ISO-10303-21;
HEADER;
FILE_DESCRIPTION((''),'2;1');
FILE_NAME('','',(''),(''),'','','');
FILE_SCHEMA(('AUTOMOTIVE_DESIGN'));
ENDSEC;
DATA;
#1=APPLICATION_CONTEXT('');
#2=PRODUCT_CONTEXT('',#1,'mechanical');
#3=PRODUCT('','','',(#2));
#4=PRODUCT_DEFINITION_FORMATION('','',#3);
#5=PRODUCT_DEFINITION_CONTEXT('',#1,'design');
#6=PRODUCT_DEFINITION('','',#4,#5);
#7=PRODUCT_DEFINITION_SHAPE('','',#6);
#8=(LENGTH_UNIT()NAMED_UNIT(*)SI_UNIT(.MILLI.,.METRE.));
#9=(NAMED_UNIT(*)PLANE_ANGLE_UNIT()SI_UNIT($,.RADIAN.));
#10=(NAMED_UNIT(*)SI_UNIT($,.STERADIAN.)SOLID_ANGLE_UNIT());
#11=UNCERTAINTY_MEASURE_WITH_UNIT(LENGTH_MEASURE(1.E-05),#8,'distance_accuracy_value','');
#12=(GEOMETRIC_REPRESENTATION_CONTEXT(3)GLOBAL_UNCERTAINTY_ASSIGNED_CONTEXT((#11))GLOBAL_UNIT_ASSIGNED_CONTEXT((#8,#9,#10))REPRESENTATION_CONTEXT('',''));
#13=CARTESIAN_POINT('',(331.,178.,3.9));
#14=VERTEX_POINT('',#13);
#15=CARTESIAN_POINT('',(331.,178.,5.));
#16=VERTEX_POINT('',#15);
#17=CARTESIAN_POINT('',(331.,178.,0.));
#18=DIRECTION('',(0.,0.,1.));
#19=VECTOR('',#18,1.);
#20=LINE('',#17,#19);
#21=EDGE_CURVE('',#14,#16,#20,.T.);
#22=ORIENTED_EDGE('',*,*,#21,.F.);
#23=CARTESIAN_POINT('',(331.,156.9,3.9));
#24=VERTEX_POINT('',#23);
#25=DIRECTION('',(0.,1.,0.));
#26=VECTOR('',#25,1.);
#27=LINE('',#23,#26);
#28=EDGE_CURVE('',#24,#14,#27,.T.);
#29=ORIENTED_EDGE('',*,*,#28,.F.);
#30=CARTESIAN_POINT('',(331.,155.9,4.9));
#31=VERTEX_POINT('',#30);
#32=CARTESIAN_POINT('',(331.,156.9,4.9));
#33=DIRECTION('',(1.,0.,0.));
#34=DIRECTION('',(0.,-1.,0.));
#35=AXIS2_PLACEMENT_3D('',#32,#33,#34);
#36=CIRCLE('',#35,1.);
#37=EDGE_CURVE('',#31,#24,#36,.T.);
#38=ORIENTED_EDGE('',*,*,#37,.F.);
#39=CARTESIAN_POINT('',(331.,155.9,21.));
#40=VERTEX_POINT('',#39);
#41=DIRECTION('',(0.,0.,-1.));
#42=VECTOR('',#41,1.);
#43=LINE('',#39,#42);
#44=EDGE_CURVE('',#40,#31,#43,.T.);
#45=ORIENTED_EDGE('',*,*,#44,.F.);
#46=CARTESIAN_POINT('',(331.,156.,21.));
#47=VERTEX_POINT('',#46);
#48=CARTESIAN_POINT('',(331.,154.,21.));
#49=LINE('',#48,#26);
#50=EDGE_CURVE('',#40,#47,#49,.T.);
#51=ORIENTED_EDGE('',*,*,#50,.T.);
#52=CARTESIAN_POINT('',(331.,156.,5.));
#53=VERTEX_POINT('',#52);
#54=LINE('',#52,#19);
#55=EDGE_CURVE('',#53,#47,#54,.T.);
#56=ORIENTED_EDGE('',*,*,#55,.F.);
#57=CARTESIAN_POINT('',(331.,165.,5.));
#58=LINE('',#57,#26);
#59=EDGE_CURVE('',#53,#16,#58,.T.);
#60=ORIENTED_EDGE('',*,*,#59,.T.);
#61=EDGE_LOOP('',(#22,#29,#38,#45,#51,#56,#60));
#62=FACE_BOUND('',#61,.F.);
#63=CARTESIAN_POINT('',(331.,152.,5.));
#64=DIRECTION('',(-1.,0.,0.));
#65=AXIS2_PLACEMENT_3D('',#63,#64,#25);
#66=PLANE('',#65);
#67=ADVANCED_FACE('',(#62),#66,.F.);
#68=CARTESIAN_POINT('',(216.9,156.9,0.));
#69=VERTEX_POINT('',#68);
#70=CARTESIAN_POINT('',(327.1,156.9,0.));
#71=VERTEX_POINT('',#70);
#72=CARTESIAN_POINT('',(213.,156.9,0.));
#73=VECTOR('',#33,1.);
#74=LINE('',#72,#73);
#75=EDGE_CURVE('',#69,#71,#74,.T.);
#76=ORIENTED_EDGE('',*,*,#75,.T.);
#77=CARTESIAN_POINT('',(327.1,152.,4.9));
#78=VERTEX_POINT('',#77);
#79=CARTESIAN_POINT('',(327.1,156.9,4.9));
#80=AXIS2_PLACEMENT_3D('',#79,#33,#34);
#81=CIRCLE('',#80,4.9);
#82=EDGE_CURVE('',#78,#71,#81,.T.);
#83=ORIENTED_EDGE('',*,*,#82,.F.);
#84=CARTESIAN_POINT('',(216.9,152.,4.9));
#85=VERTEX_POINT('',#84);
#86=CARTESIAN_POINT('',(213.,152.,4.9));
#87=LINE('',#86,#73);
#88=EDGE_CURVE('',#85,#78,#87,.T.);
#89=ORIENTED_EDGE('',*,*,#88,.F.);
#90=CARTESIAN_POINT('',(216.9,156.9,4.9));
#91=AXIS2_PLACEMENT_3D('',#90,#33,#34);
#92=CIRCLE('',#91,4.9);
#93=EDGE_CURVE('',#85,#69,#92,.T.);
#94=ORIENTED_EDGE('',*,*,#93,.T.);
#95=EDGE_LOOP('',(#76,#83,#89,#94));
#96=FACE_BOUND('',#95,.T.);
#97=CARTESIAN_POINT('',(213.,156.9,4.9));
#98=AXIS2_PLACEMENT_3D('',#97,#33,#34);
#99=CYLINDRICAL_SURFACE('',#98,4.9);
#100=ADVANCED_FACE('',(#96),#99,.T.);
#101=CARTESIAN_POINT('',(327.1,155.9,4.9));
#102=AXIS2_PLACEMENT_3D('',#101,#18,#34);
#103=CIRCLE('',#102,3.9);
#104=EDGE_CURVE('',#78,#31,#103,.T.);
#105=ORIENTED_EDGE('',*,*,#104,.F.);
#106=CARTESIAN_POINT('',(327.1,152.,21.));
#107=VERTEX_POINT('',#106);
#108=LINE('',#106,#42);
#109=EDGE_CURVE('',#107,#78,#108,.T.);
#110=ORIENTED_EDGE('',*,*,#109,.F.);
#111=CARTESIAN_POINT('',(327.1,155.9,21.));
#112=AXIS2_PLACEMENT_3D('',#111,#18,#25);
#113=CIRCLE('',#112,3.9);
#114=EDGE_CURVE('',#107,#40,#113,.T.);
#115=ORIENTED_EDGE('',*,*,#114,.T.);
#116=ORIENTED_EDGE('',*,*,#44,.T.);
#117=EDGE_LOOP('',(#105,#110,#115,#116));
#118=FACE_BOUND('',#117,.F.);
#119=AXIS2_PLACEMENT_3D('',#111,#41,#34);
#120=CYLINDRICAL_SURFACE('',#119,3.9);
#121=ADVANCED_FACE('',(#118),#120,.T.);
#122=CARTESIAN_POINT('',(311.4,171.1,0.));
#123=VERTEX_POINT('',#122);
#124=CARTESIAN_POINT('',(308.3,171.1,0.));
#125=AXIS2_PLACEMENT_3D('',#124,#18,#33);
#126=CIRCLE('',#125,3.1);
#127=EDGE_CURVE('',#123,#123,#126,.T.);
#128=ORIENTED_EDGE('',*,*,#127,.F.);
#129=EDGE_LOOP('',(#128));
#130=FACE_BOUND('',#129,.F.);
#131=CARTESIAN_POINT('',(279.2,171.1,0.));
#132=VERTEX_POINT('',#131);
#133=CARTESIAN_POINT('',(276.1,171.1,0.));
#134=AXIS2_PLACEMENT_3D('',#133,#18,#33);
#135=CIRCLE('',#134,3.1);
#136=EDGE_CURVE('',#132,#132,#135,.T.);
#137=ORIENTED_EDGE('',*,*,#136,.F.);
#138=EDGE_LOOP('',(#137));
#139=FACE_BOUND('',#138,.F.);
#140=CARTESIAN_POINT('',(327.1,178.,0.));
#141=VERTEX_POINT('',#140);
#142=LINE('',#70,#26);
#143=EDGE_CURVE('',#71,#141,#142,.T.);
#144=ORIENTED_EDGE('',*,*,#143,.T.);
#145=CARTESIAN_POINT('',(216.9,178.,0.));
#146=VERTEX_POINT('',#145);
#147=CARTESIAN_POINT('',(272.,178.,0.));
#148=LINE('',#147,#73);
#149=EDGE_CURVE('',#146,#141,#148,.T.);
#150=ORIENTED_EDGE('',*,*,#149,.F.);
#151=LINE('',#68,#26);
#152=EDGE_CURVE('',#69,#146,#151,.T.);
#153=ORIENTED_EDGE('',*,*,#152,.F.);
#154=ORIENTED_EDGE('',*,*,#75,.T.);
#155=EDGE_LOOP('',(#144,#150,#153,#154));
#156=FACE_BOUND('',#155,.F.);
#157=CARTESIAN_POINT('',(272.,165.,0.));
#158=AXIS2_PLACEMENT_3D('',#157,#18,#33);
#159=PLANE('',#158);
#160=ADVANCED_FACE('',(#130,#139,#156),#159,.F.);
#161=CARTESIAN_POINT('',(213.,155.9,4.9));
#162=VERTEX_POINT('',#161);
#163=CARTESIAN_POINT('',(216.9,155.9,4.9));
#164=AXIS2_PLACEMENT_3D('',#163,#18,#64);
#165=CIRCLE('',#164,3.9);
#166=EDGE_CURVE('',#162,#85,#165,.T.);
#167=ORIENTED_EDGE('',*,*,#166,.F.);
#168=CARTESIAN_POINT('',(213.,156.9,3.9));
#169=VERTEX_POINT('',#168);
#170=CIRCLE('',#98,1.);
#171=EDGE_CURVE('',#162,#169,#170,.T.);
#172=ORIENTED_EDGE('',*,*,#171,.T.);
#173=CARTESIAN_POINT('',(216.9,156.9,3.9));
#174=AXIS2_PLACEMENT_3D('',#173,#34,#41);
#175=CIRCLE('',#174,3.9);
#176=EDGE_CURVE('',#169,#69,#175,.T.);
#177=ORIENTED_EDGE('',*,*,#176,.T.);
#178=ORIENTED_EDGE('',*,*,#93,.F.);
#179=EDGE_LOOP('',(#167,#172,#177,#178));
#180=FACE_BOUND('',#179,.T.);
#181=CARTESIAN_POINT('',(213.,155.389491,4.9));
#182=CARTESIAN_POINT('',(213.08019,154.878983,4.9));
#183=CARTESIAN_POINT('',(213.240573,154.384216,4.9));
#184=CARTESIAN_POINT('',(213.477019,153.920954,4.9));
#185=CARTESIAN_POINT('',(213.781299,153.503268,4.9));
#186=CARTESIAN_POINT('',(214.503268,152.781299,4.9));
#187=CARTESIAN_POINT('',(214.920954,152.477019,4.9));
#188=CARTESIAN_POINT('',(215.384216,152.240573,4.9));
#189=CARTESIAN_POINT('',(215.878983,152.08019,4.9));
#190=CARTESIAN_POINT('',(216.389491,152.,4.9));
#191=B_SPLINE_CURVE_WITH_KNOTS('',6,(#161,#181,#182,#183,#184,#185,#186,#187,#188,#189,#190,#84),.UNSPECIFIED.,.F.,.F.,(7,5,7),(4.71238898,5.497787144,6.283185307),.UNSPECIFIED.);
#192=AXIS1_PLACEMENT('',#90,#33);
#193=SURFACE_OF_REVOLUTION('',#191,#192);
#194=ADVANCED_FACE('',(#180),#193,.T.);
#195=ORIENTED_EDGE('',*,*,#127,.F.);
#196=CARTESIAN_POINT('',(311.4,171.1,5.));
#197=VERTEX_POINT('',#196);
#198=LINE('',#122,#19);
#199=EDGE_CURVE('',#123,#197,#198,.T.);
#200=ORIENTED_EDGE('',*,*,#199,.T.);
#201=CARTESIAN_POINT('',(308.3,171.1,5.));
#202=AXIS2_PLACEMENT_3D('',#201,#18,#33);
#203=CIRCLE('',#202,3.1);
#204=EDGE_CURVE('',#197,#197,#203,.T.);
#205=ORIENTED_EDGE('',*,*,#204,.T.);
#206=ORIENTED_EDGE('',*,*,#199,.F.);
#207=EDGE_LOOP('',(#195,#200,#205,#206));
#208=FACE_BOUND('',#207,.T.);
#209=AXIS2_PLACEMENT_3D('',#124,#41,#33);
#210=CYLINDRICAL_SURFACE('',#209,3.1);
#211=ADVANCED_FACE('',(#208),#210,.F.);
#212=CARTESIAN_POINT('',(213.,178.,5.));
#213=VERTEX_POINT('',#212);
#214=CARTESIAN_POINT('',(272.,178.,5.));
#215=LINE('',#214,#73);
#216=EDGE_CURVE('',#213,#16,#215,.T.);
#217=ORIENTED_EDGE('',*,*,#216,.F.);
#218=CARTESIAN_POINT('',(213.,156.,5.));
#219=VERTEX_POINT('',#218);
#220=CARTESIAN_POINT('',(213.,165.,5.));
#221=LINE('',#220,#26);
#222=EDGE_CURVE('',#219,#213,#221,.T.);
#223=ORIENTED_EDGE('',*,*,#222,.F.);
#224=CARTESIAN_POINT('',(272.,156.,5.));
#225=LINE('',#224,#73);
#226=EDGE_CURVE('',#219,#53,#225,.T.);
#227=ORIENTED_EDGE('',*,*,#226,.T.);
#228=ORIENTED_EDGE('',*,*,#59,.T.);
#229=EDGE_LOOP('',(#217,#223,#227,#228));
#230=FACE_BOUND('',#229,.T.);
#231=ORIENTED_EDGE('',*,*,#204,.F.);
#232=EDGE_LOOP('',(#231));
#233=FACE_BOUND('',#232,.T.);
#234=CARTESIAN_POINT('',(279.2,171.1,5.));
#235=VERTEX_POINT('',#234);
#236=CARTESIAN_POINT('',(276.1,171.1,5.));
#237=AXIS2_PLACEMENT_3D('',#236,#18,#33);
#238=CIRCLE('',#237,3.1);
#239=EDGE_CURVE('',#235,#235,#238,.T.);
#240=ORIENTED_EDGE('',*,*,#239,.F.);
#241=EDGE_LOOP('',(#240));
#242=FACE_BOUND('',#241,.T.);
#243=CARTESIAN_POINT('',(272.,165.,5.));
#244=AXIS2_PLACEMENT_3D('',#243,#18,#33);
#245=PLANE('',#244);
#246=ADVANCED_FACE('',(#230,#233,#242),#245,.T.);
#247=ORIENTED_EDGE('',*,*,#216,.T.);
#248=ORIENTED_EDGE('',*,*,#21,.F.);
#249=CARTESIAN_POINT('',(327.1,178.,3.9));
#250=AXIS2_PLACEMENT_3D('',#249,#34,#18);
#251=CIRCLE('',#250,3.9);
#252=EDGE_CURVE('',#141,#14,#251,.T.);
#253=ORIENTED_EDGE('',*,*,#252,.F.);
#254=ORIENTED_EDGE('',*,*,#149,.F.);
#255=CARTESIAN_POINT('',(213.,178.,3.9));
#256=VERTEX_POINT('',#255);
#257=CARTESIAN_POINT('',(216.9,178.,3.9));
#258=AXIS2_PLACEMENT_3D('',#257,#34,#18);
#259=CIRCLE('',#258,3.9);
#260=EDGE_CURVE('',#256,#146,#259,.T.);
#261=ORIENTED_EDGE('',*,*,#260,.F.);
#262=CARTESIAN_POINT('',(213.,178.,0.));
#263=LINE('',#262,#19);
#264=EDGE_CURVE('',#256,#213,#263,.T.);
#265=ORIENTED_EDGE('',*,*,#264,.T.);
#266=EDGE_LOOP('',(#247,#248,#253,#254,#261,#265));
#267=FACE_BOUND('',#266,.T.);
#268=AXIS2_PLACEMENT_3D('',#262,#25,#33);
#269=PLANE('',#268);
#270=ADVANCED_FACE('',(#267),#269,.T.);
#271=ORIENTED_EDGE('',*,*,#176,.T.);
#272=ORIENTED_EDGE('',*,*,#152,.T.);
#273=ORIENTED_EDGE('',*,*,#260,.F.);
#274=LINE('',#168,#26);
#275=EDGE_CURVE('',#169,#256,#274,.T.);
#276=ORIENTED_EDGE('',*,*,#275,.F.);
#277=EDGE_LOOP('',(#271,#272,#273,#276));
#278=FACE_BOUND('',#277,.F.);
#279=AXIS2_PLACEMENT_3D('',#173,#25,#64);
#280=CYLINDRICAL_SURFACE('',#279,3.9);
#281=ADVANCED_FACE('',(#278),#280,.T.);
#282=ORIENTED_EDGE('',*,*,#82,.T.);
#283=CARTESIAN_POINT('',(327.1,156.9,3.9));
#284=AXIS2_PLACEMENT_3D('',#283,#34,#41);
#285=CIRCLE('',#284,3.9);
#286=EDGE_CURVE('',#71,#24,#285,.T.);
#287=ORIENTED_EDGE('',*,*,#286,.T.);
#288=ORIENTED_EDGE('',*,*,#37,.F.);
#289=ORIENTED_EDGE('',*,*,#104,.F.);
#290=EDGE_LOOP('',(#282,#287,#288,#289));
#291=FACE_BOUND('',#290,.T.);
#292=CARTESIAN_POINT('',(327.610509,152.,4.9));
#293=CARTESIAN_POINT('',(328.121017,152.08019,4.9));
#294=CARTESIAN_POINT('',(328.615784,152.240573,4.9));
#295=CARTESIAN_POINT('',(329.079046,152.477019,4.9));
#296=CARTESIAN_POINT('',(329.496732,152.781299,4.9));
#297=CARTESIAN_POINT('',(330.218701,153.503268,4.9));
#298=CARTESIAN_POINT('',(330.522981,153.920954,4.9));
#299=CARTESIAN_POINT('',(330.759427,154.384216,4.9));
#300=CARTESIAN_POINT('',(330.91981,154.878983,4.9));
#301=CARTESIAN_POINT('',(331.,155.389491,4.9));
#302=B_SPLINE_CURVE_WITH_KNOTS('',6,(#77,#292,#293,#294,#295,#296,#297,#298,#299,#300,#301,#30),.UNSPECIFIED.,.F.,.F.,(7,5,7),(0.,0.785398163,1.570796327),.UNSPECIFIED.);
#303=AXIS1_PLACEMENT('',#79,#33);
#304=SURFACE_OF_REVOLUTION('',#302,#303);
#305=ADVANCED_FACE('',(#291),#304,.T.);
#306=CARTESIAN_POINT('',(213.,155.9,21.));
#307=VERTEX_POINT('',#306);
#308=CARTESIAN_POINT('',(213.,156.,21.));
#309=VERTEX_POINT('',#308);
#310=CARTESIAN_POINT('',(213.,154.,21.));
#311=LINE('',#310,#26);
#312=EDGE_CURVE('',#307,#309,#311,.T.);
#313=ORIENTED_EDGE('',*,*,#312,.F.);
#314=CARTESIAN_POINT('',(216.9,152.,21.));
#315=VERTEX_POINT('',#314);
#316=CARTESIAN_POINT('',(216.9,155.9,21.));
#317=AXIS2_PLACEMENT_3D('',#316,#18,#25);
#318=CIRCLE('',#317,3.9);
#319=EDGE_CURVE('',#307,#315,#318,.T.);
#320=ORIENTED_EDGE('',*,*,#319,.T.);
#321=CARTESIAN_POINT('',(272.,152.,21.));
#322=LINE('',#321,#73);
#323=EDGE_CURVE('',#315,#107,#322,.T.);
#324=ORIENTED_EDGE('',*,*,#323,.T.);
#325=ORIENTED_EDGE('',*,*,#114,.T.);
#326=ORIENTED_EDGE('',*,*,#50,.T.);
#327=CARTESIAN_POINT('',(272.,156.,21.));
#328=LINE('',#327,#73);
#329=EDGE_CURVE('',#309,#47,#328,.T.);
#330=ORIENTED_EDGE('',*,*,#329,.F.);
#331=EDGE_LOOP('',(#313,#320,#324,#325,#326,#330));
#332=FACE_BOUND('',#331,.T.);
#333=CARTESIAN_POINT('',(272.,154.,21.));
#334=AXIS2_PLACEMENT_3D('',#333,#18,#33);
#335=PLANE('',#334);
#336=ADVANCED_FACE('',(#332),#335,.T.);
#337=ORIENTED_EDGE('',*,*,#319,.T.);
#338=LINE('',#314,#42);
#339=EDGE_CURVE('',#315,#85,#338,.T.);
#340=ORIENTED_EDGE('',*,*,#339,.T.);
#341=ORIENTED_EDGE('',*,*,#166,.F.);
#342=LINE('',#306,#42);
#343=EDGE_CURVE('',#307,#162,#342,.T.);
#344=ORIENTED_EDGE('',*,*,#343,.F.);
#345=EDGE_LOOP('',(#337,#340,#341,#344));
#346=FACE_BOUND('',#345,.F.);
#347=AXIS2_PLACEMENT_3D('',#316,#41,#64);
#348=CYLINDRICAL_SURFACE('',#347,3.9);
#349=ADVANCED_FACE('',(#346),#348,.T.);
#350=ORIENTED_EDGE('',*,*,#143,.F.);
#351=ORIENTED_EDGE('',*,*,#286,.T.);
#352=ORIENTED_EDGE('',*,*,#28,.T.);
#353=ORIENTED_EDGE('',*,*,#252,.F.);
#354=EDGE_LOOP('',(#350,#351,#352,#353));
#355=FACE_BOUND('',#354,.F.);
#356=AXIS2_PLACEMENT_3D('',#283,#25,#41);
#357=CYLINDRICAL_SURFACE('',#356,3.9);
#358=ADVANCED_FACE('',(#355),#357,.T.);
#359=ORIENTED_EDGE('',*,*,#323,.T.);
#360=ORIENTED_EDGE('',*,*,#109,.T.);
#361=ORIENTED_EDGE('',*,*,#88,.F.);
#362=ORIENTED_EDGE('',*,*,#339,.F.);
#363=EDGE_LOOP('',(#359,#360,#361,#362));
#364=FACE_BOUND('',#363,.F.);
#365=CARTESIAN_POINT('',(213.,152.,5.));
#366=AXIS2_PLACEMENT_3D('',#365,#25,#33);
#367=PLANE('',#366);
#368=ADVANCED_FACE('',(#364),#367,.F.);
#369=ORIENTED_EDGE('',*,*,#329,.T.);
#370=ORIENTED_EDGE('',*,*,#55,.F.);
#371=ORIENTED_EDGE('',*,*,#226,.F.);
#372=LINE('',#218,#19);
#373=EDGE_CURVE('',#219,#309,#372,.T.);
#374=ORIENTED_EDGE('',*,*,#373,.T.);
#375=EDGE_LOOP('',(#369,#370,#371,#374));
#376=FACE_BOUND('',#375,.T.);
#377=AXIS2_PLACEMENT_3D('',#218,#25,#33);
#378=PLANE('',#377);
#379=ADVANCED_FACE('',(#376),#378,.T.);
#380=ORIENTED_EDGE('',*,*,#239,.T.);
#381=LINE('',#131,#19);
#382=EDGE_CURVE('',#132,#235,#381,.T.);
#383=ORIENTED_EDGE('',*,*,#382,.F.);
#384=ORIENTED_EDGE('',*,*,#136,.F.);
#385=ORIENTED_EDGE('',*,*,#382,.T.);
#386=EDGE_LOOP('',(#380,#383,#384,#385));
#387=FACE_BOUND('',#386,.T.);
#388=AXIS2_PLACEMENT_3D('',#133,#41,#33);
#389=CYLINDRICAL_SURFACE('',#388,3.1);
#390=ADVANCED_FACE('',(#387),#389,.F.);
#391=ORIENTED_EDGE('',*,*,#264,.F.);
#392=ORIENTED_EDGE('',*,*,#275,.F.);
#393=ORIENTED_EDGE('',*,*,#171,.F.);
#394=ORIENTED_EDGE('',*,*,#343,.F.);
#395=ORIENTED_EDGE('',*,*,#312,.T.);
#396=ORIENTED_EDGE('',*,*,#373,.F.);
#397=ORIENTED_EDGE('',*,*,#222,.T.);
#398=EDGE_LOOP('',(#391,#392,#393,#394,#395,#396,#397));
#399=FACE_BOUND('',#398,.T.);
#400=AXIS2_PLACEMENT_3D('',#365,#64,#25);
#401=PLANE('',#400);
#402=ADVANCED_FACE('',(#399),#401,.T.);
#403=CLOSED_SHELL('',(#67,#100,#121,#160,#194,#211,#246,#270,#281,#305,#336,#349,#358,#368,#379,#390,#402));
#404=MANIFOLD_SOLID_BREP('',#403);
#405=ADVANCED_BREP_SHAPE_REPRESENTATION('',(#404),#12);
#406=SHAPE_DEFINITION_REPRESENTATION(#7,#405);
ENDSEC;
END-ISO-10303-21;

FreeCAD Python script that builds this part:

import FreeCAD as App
import Part
import Sketcher

V = App.Vector
Q = App.Units.Quantity


def edges_at(feature, points):
    """Names of the edges that pass closest to the given points."""
    edges = feature.Shape.Edges
    near = lambda p: min(range(len(edges)), key=lambda i: edges[i].distToShape(Part.Vertex(*p))[0])
    return sorted({f"Edge{near(p) + 1}" for p in points})

doc = App.newDocument("Part")
body = doc.addObject("PartDesign::Body", "Body")

# Sketch on XY plane
sketch1 = body.newObject("Sketcher::SketchObject", "Sketch")
sketch1.AttachmentSupport = (doc.getObject("XY_Plane"), [""])
sketch1.MapMode = "FlatFace"
sketch1.addGeometry([
    Part.LineSegment(V(-59, 18, 0), V(-59, -8, 0)),  # 0
    Part.LineSegment(V(-59, -8, 0), V(59, -8, 0)),  # 1
    Part.LineSegment(V(59, -8, 0), V(59, 18, 0)),  # 2
    Part.LineSegment(V(59, 18, 0), V(-59, 18, 0)),  # 3
    Part.Circle(V(4.1, 11.1, 0), V(0, 0, 1), 3.1),  # 4
    Part.Circle(V(36.3, 11.1, 0), V(0, 0, 1), 3.1),  # 5
], False)
sketch1.addConstraint([
    Sketcher.Constraint("Coincident", 0, 2, 1, 1),
    Sketcher.Constraint("Coincident", 1, 2, 2, 1),
    Sketcher.Constraint("Coincident", 2, 2, 3, 1),
    Sketcher.Constraint("Coincident", 3, 2, 0, 1),
    Sketcher.Constraint("Vertical", 0),
    Sketcher.Constraint("Horizontal", 1),
    Sketcher.Constraint("Vertical", 2),
    Sketcher.Constraint("Horizontal", 3),
    Sketcher.Constraint("Equal", 4, 5),
    Sketcher.Constraint("Horizontal", 4, 3, 5, 3),
    Sketcher.Constraint("Diameter", 4, Q("6.2 mm")),
    Sketcher.Constraint("DistanceX", 1, 1, 1, 2, Q("118 mm")),
    Sketcher.Constraint("DistanceY", 0, 2, 0, 1, Q("26 mm")),
    Sketcher.Constraint("DistanceX", 0, 2, -1, 1, Q("59 mm")),
    Sketcher.Constraint("DistanceY", 0, 2, -1, 1, Q("8 mm")),
    Sketcher.Constraint("DistanceX", -1, 1, 4, 3, Q("4.1 mm")),
    Sketcher.Constraint("DistanceY", -1, 1, 4, 3, Q("11.1 mm")),
    Sketcher.Constraint("DistanceX", -1, 1, 5, 3, Q("36.3 mm")),
])
pad1 = body.newObject("PartDesign::Pad", "Pad")
pad1.Profile = sketch1
pad1.Length = 5

# Sketch on XY plane
sketch2 = body.newObject("Sketcher::SketchObject", "Sketch001")
sketch2.AttachmentSupport = (doc.getObject("XY_Plane"), [""])
sketch2.MapMode = "FlatFace"
sketch2.AttachmentOffset = App.Placement(V(0, 0, 5), App.Rotation())
sketch2.addGeometry([
    Part.LineSegment(V(-59, -4, 0), V(-59, -8, 0)),
    Part.LineSegment(V(-59, -8, 0), V(59, -8, 0)),
    Part.LineSegment(V(59, -8, 0), V(59, -4, 0)),
    Part.LineSegment(V(59, -4, 0), V(-59, -4, 0)),
], False)
sketch2.addConstraint([
    Sketcher.Constraint("Coincident", 0, 2, 1, 1),
    Sketcher.Constraint("Coincident", 1, 2, 2, 1),
    Sketcher.Constraint("Coincident", 2, 2, 3, 1),
    Sketcher.Constraint("Coincident", 3, 2, 0, 1),
    Sketcher.Constraint("Vertical", 0),
    Sketcher.Constraint("Horizontal", 1),
    Sketcher.Constraint("Vertical", 2),
    Sketcher.Constraint("Horizontal", 3),
    Sketcher.Constraint("DistanceX", 1, 1, 1, 2, Q("118 mm")),
    Sketcher.Constraint("DistanceY", 0, 2, 0, 1, Q("4 mm")),
    Sketcher.Constraint("DistanceX", 0, 2, -1, 1, Q("59 mm")),
    Sketcher.Constraint("DistanceY", 0, 2, -1, 1, Q("8 mm")),
])
pad2 = body.newObject("PartDesign::Pad", "Pad001")
pad2.Profile = sketch2
pad2.Length = 16
doc.recompute()

fillet = body.newObject("PartDesign::Fillet", "Fillet")
fillet.Base = (pad2, edges_at(pad2, [(0, -8, 0)]))
fillet.Radius = 4.9
doc.recompute()

fillet2 = body.newObject("PartDesign::Fillet", "Fillet001")
fillet2.Base = (fillet, edges_at(fillet, [(-59, -6.565, 1.435), (59, -6.565, 1.435)]))
fillet2.Radius = 3.9
body2 = doc.addObject("PartDesign::Body", "Body001")
doc.recompute()

body.Placement = App.Placement(V(272, 160, 0), App.Rotation(V(0, 0, 1), 0))
boolean = body2.newObject("PartDesign::Boolean", "Boolean")
boolean.Type = "Fuse"
boolean.addObjects([body])

doc.recompute()
